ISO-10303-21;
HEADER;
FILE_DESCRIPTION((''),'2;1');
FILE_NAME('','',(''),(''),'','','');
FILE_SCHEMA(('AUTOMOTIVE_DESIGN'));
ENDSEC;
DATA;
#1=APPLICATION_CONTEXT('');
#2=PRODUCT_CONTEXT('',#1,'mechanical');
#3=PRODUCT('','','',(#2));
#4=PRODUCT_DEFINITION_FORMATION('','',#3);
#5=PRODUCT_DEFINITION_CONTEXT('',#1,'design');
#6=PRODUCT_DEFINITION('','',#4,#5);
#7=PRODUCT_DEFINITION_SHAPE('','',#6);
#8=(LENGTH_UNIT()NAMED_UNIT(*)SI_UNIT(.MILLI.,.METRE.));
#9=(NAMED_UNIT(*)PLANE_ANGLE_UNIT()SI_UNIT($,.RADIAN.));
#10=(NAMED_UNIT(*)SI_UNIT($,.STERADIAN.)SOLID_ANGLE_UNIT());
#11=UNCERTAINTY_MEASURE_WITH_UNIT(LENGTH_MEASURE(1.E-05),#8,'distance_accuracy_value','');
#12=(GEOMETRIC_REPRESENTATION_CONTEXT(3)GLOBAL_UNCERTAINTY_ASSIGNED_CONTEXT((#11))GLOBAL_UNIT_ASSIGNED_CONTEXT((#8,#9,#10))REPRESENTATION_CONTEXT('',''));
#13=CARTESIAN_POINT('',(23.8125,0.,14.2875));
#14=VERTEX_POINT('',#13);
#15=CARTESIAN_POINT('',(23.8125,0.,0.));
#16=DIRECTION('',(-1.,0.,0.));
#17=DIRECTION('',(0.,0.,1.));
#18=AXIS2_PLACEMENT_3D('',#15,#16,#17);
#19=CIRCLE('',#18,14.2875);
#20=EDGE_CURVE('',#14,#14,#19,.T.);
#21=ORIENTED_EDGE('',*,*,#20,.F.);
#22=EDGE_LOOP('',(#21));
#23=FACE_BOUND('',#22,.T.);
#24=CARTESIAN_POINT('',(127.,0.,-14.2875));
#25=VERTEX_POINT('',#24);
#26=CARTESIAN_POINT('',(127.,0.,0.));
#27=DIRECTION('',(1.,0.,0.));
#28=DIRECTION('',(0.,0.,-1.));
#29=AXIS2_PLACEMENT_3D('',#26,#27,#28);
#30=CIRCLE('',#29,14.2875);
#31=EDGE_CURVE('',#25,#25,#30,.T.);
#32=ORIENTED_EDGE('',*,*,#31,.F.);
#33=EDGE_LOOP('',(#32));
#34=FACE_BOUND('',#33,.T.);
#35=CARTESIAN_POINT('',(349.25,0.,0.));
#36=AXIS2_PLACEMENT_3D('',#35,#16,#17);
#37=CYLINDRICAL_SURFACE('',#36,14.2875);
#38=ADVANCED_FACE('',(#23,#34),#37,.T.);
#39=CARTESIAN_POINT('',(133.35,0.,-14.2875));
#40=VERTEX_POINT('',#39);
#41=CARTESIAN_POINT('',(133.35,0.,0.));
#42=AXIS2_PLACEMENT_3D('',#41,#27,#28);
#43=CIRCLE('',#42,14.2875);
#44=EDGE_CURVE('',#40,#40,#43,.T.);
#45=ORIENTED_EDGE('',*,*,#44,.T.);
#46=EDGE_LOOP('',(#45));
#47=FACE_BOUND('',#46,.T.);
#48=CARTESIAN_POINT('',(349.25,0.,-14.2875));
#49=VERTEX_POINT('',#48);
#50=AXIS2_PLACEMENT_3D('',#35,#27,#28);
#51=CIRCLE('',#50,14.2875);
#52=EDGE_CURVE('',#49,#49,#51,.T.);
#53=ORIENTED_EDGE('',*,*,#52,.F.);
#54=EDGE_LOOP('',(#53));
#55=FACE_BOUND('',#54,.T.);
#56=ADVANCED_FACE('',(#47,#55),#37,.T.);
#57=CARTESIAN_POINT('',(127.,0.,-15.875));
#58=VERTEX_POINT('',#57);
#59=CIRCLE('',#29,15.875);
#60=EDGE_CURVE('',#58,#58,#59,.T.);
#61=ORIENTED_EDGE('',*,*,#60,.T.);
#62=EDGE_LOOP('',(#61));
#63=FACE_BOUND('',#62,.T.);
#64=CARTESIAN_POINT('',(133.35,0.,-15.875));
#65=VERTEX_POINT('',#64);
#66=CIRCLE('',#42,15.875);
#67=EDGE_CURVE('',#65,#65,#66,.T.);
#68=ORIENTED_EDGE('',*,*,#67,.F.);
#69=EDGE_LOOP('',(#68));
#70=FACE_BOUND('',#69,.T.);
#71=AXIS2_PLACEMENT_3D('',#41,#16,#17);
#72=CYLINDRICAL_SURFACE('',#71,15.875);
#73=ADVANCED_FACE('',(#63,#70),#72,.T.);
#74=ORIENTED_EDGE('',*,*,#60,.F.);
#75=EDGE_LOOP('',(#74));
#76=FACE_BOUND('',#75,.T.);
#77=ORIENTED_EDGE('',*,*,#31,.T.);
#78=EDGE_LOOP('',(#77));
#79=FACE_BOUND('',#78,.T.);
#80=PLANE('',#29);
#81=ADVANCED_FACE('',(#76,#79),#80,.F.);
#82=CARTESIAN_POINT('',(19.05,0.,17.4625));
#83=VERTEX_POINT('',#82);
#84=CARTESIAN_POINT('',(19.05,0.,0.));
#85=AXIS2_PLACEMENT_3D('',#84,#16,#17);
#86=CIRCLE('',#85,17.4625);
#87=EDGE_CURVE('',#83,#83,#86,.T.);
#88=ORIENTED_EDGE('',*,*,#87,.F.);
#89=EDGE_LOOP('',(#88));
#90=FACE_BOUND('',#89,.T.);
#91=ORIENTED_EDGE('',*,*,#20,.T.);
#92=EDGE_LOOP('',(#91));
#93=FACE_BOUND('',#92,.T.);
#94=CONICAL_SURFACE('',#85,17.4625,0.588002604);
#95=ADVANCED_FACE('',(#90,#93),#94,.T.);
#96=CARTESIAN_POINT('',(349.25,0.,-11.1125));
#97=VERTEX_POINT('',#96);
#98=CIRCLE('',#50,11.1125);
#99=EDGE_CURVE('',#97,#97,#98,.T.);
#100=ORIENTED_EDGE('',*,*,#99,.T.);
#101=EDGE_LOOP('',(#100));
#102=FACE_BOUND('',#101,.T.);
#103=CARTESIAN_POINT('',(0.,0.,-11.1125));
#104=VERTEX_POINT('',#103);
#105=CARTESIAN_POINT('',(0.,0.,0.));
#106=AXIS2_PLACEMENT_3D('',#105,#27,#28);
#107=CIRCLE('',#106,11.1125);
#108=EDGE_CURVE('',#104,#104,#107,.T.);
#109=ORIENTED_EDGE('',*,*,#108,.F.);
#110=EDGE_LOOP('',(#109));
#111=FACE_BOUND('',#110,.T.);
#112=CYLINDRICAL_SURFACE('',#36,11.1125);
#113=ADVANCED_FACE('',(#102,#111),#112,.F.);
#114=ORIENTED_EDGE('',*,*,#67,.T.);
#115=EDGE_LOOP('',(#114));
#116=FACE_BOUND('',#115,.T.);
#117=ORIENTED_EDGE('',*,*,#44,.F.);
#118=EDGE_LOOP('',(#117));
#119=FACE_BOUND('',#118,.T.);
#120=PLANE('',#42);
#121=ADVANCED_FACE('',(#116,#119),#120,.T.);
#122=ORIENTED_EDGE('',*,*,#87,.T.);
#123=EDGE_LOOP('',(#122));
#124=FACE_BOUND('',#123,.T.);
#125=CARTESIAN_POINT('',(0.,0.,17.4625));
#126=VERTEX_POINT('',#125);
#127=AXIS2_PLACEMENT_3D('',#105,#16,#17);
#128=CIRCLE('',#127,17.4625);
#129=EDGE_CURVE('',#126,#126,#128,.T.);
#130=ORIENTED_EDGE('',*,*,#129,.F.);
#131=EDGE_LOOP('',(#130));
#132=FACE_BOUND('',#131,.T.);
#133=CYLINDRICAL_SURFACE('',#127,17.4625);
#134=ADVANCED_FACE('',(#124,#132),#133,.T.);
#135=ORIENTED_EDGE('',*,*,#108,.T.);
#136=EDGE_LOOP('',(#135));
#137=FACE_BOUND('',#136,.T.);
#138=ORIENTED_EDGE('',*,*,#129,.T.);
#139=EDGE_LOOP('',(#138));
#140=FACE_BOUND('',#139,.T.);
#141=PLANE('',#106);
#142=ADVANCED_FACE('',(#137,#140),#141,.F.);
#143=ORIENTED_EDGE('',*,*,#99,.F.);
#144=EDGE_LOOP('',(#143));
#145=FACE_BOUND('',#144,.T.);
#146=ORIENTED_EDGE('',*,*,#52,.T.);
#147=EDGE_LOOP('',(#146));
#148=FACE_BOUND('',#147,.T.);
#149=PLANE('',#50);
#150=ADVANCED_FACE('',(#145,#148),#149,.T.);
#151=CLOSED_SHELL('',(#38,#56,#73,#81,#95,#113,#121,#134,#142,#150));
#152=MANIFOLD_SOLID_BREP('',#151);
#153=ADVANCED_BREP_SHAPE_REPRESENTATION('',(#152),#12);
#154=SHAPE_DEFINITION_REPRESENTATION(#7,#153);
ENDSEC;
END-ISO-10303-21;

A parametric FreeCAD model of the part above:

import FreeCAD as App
import Part
import Sketcher

V = App.Vector
Q = App.Units.Quantity


def add_polygon(sketch, points):
    """Adds a closed chain of lines whose ends are joined by coincident constraints."""
    first, n = sketch.GeometryCount, len(points)
    for a, b in zip(points, points[1:] + points[:1]):
        sketch.addGeometry(Part.LineSegment(App.Vector(*a, 0), App.Vector(*b, 0)), False)
    for i in range(n):
        sketch.addConstraint(Sketcher.Constraint("Coincident", first + i, 2, first + (i + 1) % n, 1))

doc = App.newDocument("Part")
body = doc.addObject("PartDesign::Body", "Body")

# Sketch on YZ plane
sketch1 = body.newObject("Sketcher::SketchObject", "Sketch")
sketch1.AttachmentSupport = (doc.getObject("YZ_Plane"), [""])
sketch1.MapMode = "FlatFace"
sketch1.addGeometry([
    Part.Circle(V(0, 0, 0), V(0, 0, 1), 14),
    Part.Circle(V(0, 0, 0), V(0, 0, 1), 11),
], False)
sketch1.addConstraint([
    Sketcher.Constraint("Coincident", 0, 3, -1, 1),
    Sketcher.Constraint("Coincident", 1, 3, -1, 1),
    Sketcher.Constraint("Diameter", 0, Q("1.125 in")),
    Sketcher.Constraint("Diameter", 1, Q("0.875 in")),
])
pad1 = body.newObject("PartDesign::Pad", "Pad")
pad1.Profile = sketch1
pad1.Length = Q("13.75 in")

# Sketch on YZ plane
sketch2 = body.newObject("Sketcher::SketchObject", "Sketch001")
sketch2.AttachmentSupport = (doc.getObject("YZ_Plane"), [""])
sketch2.MapMode = "FlatFace"
sketch2.AttachmentOffset = App.Placement(V(0, 0, 5 * 25.4), App.Rotation())
sketch2.addGeometry([
    Part.Circle(V(0, 0, 0), V(0, 0, 1), 16),
    Part.Circle(V(0, 0, 0), V(0, 0, 1), 13),
], False)
sketch2.addConstraint([
    Sketcher.Constraint("Coincident", 0, 3, -1, 1),
    Sketcher.Constraint("Coincident", 1, 3, -1, 1),
    Sketcher.Constraint("Diameter", 0, Q("1.25 in")),
    Sketcher.Constraint("Diameter", 1, Q("25.349416 mm")),
])
pad2 = body.newObject("PartDesign::Pad", "Pad001")
pad2.Profile = sketch2
pad2.Length = Q("0.25 in")

# Sketch on XY plane
sketch3 = body.newObject("Sketcher::SketchObject", "Sketch002")
sketch3.AttachmentSupport = (doc.getObject("XY_Plane"), [""])
sketch3.MapMode = "FlatFace"
add_polygon(sketch3, [(0, 12.5), (23.8, 12.5), (23.8, 14.3), (19.1, 17.5), (0, 17.5)])  # lines 0-4
sketch3.addConstraint([
    Sketcher.Constraint("Horizontal", 0),
    Sketcher.Constraint("Vertical", 1),
    Sketcher.Constraint("Horizontal", 3),
    Sketcher.Constraint("Vertical", 4),
    Sketcher.Constraint("PointOnObject", 3, 2, -2),
    Sketcher.Constraint("DistanceX", 3, 2, 3, 1, Q("0.75 in")),
    Sketcher.Constraint("DistanceX", 0, 1, 0, 2, Q("0.9375 in")),
    Sketcher.Constraint("DistanceY", -1, 1, 1, 2, Q("0.5625 in")),
    Sketcher.Constraint("DistanceY", -1, 1, 2, 2, Q("0.6875 in")),
    Sketcher.Constraint("DistanceY", 1, 1, 1, 2, Q("1.755847 mm")),
])
revolution = body.newObject("PartDesign::Revolution", "Revolution")
revolution.Profile = sketch3
revolution.ReferenceAxis = (sketch3, ["H_Axis"])
revolution.Angle = 360

doc.recompute()
